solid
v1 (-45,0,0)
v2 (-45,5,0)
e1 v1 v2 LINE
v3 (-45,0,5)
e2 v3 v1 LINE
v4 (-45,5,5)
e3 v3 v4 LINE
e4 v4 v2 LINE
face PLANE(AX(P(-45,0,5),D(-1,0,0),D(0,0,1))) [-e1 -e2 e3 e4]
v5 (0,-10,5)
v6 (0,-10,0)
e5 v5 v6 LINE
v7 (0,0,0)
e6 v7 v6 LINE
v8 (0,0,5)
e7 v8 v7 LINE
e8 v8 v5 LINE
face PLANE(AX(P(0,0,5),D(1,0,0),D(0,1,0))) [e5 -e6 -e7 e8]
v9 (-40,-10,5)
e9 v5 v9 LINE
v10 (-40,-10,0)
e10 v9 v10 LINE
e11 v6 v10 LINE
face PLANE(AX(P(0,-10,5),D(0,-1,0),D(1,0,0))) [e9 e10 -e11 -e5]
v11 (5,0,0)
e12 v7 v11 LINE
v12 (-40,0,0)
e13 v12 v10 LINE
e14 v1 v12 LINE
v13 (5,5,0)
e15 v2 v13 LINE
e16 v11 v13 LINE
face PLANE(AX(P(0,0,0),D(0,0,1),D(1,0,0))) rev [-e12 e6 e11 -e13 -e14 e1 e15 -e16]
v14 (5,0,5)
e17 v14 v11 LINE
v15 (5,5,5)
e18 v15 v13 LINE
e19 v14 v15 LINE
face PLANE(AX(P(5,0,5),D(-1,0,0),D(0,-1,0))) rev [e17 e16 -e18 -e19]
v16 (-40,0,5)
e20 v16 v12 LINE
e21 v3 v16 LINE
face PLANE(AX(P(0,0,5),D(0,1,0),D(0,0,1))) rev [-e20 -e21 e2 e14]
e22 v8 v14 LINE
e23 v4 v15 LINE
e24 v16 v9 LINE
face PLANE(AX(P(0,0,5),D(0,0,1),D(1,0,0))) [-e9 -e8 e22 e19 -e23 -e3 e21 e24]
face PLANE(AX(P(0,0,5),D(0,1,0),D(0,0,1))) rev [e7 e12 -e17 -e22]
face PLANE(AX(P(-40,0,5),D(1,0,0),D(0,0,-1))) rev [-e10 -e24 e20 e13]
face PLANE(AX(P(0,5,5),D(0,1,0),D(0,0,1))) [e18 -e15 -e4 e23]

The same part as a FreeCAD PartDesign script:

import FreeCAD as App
import Part
import Sketcher


def add_polygon(sketch, points):
    """Adds a closed chain of lines whose ends are joined by coincident constraints."""
    first, n = sketch.GeometryCount, len(points)
    for a, b in zip(points, points[1:] + points[:1]):
        sketch.addGeometry(Part.LineSegment(App.Vector(*a, 0), App.Vector(*b, 0)), False)
    for i in range(n):
        sketch.addConstraint(Sketcher.Constraint("Coincident", first + i, 2, first + (i + 1) % n, 1))

doc = App.newDocument("Part")
params = doc.addObject("Spreadsheet::Sheet", "Params")
for row, (alias, value) in enumerate([
    ("sketch1_width", "40 mm"),
    ("sketch1_width2", "5 mm"),
    ("sketch1_height", "10 mm"),
    ("pad1_length", "5 mm"),
], start=1):
    params.set(f"A{row}", alias)
    params.set(f"B{row}", "=" + value)
    params.setAlias(f"B{row}", alias)

body = doc.addObject("PartDesign::Body", "Body")

sketch1 = body.newObject("Sketcher::SketchObject", "Sketch")
sketch1.AttachmentSupport = (doc.getObject("XY_Plane"), [""])
sketch1.MapMode = "FlatFace"
add_polygon(sketch1, [(-40, 0), (-40, -10), (0, -10), (0, 0), (5, 0), (5, 5), (-45, 5), (-45, 0)])
sketch1.addConstraint([
    Sketcher.Constraint("Vertical", 0),
    Sketcher.Constraint("Horizontal", 1),
    Sketcher.Constraint("Vertical", 2),
    Sketcher.Constraint("Horizontal", 3),
    Sketcher.Constraint("Vertical", 4),
    Sketcher.Constraint("Horizontal", 5),
    Sketcher.Constraint("Vertical", 6),
    Sketcher.Constraint("Horizontal", 7),
    Sketcher.Constraint("Coincident", 2, 2, -1, 1),
    Sketcher.Constraint("PointOnObject", 6, 2, -1),
    Sketcher.Constraint("Equal", 3, 7),
    Sketcher.Constraint("Equal", 7, 4),
    Sketcher.Constraint("DistanceX", 1, 1, 1, 2, 40.0),
    Sketcher.Constraint("DistanceX", 3, 1, 3, 2, 5.0),
    Sketcher.Constraint("DistanceY", 0, 2, 0, 1, 10.0),
])
sketch1.setExpression("Constraints[20]", "Params.sketch1_width")
sketch1.setExpression("Constraints[21]", "Params.sketch1_width2")
sketch1.setExpression("Constraints[22]", "Params.sketch1_height")
pad1 = body.newObject("PartDesign::Pad", "Pad")
pad1.Profile = sketch1
pad1.setExpression("Length", "Params.pad1_length")

doc.recompute()
